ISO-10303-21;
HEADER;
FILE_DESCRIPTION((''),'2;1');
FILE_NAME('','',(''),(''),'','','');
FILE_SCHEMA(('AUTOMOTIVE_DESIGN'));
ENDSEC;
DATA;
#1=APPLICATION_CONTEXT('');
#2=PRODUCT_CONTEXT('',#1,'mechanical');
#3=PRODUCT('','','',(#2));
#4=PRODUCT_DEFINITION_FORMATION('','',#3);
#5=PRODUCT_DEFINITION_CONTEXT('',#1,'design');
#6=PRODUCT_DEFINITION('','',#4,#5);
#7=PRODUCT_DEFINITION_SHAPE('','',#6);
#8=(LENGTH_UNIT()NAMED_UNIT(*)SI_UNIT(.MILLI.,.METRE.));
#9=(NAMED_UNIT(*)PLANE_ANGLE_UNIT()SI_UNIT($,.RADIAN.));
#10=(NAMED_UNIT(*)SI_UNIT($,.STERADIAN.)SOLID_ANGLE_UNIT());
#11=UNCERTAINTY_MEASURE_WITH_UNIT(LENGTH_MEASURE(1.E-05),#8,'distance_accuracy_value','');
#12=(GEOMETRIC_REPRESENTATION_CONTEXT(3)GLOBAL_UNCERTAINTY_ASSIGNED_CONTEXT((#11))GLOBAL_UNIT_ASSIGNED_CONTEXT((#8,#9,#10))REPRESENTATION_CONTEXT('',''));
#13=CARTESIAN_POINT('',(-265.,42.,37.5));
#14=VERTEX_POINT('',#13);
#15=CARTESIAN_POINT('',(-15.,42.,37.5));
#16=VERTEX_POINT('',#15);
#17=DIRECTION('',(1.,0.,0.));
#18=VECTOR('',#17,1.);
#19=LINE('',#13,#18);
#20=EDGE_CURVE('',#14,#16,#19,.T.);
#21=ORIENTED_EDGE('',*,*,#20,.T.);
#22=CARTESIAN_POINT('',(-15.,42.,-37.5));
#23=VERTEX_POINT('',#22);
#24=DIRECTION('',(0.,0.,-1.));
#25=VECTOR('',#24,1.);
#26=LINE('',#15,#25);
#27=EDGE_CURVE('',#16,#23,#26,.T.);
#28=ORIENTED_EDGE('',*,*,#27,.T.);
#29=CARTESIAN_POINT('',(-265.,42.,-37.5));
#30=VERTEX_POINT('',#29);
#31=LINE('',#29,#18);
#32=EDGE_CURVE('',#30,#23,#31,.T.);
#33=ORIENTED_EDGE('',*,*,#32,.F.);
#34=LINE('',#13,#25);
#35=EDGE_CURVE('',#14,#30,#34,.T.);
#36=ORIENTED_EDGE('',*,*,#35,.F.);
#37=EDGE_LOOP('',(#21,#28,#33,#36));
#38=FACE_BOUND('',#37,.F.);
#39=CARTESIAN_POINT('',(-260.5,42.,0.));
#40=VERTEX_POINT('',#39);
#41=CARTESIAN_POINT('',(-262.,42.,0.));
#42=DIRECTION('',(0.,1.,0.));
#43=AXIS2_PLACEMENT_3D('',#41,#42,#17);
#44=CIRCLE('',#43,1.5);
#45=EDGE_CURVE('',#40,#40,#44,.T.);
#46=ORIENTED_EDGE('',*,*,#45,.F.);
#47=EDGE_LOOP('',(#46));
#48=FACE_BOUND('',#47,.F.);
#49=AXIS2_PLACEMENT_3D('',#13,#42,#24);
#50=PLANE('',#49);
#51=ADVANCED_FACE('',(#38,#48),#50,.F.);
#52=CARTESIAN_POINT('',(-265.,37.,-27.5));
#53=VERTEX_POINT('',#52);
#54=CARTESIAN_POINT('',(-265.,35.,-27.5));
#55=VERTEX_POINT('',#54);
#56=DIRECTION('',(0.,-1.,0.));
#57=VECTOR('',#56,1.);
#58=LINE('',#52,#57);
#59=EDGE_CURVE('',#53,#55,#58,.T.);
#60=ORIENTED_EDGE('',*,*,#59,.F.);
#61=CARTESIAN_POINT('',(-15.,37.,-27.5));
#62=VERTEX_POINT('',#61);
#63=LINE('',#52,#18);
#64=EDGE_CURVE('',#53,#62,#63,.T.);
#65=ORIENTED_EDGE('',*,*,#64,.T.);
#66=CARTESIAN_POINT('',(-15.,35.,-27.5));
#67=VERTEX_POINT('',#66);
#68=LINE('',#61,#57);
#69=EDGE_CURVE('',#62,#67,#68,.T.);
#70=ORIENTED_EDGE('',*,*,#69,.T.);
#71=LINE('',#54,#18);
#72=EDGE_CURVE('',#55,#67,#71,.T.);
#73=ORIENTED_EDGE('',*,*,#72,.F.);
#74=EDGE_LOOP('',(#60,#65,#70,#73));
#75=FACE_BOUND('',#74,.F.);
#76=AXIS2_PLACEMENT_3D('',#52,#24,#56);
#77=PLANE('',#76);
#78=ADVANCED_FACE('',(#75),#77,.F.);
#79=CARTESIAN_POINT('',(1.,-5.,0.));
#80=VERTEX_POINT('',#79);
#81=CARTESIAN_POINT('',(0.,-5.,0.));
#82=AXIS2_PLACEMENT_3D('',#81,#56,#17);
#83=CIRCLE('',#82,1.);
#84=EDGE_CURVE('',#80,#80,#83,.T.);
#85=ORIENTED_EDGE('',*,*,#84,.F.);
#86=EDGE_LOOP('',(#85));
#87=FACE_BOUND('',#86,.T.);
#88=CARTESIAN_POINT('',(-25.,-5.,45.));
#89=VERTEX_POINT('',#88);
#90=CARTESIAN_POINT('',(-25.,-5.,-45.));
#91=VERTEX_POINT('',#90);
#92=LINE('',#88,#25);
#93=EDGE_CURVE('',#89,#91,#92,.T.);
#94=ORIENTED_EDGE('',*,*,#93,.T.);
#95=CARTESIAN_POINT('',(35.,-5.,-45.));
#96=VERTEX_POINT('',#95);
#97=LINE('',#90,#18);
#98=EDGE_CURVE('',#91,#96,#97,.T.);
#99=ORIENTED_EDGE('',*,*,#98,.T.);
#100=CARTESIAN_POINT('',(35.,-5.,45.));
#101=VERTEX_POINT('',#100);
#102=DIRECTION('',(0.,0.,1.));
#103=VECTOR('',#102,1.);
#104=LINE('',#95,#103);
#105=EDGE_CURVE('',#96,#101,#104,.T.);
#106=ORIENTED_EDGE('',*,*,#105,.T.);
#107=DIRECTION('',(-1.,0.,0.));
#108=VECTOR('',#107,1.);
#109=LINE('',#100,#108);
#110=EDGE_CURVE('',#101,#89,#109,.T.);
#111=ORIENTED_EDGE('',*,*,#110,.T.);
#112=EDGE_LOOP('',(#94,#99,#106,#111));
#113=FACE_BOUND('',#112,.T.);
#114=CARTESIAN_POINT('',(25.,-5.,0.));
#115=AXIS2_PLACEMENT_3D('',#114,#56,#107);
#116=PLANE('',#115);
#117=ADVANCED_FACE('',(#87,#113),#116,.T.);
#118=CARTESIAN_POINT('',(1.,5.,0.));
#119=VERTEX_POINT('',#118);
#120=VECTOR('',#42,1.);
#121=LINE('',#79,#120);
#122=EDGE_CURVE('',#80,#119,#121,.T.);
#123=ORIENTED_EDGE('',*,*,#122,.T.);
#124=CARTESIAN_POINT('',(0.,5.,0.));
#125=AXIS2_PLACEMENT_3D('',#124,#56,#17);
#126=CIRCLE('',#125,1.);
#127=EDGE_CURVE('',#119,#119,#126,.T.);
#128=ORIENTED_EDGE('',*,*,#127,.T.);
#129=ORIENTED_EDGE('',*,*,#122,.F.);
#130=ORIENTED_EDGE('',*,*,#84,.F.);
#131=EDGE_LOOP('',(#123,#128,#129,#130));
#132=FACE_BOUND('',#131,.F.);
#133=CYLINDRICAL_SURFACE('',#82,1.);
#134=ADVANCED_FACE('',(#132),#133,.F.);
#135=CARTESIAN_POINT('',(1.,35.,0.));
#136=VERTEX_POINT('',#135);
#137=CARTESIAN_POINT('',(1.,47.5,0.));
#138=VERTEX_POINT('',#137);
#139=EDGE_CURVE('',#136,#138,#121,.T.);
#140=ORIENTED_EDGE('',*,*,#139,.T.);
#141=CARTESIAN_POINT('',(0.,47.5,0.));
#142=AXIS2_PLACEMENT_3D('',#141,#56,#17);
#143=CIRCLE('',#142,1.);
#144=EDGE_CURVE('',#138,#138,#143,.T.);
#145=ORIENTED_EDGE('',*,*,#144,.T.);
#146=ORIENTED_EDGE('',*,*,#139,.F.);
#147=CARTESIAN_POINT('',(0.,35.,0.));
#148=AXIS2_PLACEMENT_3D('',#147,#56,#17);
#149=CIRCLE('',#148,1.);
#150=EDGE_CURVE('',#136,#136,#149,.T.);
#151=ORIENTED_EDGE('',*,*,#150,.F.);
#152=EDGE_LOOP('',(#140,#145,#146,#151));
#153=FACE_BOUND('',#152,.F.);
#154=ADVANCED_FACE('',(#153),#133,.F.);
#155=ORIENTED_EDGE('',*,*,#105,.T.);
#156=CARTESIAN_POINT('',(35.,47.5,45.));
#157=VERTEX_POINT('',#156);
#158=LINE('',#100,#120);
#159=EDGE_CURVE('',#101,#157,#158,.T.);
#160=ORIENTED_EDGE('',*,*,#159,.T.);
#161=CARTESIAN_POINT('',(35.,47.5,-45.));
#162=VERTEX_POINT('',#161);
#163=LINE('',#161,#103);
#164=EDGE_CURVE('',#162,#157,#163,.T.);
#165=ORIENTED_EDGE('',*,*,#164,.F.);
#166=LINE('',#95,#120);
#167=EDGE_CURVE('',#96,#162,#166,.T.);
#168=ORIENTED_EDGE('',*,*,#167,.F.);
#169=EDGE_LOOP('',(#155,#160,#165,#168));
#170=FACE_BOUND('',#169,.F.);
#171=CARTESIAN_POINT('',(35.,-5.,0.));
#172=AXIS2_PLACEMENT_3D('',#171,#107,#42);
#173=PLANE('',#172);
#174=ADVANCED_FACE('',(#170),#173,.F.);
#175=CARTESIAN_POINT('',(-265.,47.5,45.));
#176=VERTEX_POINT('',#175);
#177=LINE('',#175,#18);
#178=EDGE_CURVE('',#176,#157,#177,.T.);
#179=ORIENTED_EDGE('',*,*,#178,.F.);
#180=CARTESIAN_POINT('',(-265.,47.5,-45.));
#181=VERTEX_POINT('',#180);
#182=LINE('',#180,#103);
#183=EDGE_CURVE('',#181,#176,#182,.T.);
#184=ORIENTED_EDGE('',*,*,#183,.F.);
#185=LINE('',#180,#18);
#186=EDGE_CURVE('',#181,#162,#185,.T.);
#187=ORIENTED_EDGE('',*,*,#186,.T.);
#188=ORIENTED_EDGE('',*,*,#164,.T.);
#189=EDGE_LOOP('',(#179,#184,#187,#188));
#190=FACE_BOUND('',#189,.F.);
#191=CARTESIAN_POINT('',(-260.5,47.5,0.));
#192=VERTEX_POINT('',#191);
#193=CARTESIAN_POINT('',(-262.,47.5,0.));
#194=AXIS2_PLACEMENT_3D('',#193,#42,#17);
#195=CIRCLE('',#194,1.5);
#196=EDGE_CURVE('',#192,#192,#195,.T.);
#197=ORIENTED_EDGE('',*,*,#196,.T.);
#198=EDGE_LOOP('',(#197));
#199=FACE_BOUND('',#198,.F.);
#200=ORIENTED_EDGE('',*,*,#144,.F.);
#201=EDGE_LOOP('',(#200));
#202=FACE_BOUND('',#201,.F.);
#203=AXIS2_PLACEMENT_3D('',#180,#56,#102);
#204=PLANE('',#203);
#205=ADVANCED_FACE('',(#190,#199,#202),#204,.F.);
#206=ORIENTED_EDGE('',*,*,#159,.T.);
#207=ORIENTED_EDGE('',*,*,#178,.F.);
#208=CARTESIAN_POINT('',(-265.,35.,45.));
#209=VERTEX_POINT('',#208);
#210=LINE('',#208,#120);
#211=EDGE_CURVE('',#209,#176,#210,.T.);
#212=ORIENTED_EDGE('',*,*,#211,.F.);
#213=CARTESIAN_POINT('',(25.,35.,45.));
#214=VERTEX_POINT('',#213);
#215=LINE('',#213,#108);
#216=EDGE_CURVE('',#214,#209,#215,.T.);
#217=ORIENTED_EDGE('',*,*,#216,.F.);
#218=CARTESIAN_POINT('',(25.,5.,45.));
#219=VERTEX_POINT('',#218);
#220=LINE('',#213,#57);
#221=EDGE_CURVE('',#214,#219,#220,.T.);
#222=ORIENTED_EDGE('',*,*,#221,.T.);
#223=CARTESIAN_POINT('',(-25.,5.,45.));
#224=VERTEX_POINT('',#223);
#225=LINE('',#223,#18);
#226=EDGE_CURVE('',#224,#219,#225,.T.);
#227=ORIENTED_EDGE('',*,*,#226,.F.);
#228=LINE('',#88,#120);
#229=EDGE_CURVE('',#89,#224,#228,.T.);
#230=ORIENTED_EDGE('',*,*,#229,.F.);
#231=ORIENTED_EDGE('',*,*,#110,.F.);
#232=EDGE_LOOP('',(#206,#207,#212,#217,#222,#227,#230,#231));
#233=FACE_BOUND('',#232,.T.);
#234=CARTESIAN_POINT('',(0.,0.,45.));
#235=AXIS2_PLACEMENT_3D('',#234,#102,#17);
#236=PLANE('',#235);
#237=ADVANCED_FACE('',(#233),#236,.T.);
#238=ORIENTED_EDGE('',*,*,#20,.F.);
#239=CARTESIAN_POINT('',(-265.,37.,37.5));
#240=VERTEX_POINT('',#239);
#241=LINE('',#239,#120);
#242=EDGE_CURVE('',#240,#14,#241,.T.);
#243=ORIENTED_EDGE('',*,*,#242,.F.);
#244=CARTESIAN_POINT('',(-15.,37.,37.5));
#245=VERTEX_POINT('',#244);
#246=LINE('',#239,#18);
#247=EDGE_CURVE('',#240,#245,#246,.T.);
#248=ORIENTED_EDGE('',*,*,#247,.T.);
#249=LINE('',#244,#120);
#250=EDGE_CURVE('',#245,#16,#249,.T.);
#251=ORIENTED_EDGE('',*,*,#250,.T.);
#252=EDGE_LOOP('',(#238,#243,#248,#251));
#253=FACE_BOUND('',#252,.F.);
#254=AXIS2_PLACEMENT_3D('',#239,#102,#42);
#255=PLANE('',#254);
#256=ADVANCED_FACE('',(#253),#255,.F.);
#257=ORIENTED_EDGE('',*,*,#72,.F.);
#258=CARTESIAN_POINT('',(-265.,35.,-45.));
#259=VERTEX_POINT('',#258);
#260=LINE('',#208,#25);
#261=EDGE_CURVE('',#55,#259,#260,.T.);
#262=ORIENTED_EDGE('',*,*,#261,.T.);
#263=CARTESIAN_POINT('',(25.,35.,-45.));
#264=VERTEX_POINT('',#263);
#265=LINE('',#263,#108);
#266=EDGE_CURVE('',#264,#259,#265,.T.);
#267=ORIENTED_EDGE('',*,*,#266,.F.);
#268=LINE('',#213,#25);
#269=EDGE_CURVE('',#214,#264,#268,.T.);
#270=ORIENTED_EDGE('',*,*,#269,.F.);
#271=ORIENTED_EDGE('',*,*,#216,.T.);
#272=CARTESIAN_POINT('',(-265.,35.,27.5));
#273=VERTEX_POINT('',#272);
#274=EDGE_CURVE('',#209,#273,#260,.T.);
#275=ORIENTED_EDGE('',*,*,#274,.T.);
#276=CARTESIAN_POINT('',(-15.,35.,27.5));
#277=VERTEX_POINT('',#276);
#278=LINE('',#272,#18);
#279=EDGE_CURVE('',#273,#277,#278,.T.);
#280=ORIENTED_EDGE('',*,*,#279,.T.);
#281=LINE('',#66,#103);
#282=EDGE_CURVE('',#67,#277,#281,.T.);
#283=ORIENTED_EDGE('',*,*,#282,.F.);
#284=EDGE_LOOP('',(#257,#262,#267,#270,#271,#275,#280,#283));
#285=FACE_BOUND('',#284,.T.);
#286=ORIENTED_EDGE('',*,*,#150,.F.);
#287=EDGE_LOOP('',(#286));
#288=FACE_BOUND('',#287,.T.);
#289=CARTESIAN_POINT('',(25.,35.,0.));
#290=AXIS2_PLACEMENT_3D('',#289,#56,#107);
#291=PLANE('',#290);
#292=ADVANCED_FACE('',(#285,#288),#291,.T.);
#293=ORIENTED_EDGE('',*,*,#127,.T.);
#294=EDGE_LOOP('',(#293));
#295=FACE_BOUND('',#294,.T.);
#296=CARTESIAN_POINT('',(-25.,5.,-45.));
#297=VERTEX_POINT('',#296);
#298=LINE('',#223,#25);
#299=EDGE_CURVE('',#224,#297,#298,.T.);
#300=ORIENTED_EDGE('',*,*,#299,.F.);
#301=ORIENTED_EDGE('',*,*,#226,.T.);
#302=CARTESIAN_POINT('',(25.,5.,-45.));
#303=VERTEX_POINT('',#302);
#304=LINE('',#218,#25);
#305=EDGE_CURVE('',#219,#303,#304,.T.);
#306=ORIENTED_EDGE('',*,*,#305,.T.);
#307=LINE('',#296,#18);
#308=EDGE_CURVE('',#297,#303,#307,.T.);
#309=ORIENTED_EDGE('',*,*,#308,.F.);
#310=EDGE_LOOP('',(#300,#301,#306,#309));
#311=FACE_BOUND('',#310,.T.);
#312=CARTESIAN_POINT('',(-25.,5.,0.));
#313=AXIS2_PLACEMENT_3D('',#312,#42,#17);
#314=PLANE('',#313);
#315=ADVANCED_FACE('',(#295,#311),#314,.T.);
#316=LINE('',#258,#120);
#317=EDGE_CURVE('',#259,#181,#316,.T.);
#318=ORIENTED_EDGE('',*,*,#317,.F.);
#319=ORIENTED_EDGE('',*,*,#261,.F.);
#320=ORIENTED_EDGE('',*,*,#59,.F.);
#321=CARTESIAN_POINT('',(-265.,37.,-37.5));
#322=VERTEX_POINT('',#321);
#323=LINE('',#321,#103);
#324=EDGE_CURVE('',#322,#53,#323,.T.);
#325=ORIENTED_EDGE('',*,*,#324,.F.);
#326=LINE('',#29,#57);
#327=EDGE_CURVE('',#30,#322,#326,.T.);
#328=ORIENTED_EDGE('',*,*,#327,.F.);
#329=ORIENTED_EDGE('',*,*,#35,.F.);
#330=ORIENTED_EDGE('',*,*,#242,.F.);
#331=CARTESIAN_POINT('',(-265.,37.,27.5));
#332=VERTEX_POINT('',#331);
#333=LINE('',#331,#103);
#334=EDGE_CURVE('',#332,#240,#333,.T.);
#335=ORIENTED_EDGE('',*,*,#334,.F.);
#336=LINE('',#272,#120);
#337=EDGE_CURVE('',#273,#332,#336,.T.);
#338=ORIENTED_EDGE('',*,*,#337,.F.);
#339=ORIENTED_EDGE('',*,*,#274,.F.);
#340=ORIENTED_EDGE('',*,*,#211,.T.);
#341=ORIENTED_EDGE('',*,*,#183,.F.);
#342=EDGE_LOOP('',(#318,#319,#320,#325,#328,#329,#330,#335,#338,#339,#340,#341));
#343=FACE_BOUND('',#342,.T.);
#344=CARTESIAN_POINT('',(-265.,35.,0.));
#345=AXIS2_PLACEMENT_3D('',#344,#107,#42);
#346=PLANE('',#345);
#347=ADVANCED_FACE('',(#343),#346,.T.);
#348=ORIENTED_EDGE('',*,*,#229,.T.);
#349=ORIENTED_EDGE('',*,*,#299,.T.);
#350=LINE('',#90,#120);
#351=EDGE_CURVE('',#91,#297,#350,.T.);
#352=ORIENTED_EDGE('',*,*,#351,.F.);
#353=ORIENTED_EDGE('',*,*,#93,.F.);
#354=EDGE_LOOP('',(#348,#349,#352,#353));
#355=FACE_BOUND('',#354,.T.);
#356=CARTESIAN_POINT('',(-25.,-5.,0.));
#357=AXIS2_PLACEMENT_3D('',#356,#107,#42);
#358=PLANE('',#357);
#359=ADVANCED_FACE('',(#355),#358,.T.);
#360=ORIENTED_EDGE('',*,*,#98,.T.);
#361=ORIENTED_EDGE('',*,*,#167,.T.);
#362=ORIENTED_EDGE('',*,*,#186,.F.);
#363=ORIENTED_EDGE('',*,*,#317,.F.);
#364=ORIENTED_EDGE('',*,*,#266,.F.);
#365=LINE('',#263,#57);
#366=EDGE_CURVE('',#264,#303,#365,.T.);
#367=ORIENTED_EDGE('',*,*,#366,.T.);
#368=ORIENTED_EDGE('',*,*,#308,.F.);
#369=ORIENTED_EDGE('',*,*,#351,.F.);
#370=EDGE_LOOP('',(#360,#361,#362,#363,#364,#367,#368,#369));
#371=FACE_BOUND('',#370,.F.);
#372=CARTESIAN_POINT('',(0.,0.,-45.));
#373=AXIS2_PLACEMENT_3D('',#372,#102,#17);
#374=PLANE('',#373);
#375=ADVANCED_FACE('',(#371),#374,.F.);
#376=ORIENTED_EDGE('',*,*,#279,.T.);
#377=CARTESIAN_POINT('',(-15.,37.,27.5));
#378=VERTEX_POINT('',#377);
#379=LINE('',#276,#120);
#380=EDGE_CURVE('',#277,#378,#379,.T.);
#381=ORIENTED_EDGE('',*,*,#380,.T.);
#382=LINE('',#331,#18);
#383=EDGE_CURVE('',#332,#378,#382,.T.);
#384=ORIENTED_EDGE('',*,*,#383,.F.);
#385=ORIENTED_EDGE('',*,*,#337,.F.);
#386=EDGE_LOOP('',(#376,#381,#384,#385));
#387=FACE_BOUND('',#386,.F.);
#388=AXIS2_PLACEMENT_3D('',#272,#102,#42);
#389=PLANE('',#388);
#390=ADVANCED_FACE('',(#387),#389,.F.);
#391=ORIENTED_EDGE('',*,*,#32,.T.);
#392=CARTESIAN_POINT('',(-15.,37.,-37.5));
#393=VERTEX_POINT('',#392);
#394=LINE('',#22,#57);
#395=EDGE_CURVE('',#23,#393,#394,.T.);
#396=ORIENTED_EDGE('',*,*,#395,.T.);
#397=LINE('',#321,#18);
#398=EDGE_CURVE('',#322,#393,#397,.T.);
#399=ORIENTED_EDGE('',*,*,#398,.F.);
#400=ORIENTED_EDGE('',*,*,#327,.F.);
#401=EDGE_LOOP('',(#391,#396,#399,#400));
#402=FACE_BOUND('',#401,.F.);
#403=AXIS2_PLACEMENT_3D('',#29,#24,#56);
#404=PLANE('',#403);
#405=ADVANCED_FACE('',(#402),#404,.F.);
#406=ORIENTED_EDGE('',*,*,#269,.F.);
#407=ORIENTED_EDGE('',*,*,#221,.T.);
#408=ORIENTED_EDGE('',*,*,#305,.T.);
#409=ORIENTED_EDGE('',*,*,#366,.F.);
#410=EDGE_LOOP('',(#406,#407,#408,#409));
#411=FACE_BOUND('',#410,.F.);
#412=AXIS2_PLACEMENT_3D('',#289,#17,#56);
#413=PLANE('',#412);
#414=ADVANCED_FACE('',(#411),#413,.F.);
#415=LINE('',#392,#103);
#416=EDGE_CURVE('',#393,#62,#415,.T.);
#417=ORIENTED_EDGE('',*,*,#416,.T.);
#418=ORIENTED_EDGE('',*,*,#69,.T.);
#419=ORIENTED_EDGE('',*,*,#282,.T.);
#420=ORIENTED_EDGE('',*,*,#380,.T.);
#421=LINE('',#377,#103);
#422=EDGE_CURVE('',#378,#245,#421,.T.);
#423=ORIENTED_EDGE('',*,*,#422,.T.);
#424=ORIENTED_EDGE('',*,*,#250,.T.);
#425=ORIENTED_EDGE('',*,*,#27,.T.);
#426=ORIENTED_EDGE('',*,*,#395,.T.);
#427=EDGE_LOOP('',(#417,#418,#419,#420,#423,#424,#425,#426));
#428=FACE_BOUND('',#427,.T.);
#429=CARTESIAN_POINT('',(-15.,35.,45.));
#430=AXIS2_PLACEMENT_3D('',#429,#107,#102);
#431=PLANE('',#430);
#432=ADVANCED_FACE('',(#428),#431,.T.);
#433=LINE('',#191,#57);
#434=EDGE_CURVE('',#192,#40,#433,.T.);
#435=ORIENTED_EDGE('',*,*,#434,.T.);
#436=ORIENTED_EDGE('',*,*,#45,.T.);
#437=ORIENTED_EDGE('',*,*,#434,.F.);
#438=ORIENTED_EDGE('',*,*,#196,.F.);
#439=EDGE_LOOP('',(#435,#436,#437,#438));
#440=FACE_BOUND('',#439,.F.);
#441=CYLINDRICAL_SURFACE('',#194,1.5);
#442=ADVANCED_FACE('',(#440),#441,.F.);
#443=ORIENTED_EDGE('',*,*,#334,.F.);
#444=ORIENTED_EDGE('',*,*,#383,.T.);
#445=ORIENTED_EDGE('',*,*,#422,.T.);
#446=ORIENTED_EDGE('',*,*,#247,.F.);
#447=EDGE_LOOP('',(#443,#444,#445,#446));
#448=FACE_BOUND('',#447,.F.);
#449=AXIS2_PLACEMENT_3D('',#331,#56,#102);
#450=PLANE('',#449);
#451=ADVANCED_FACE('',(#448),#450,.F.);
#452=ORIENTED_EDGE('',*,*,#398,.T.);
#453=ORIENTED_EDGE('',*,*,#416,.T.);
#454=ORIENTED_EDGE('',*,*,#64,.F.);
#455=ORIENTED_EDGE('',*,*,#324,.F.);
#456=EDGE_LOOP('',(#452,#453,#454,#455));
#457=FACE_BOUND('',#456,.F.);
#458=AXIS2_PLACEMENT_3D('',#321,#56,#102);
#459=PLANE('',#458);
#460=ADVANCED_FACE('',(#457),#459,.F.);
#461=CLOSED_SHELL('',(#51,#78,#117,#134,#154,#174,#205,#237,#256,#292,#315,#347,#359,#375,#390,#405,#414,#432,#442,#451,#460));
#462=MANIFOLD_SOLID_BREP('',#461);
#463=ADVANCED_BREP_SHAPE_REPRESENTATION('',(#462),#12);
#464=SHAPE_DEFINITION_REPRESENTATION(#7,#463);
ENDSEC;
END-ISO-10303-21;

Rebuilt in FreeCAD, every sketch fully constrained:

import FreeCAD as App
import Part
import Sketcher

V = App.Vector
Q = App.Units.Quantity


def add_polygon(sketch, points):
    """Adds a closed chain of lines whose ends are joined by coincident constraints."""
    first, n = sketch.GeometryCount, len(points)
    for a, b in zip(points, points[1:] + points[:1]):
        sketch.addGeometry(Part.LineSegment(App.Vector(*a, 0), App.Vector(*b, 0)), False)
    for i in range(n):
        sketch.addConstraint(Sketcher.Constraint("Coincident", first + i, 2, first + (i + 1) % n, 1))

doc = App.newDocument("Part")
body = doc.addObject("PartDesign::Body", "Body")

# Sketch on XY plane
sketch1 = body.newObject("Sketcher::SketchObject", "Sketch")
sketch1.AttachmentSupport = (doc.getObject("XY_Plane"), [""])
sketch1.MapMode = "FlatFace"
add_polygon(sketch1, [(-25, -5), (35, -5), (35, 50), (-265, 50), (-265, 35), (25, 35), (25, 5), (-25, 5)])  # lines 0-7
sketch1.addConstraint(Sketcher.Constraint("Horizontal", 0))
sketch1.addConstraint(Sketcher.Constraint("Vertical", 1))
sketch1.addConstraint(Sketcher.Constraint("Horizontal", 2))
sketch1.addConstraint(Sketcher.Constraint("Vertical", 3))
sketch1.addConstraint(Sketcher.Constraint("Horizontal", 4))
sketch1.addConstraint(Sketcher.Constraint("Vertical", 5))
sketch1.addConstraint(Sketcher.Constraint("Horizontal", 6))
sketch1.addConstraint(Sketcher.Constraint("Vertical", 7))
sketch1.addConstraint(Sketcher.Constraint("Symmetric", 5, 2, 7, 2, -1, 1))
sketch1.addConstraint(Sketcher.Constraint("DistanceX", 2, 2, 2, 1, Q("300 mm")))
sketch1.addConstraint(Sketcher.Constraint("DistanceX", 6, 2, 6, 1, Q("50 mm")))
sketch1.addConstraint(Sketcher.Constraint("DistanceY", 3, 2, 3, 1, Q("15 mm")))
sketch1.addConstraint(Sketcher.Constraint("DistanceY", 7, 2, 7, 1, Q("10 mm")))
sketch1.addConstraint(Sketcher.Constraint("DistanceY", -1, 1, 1, 2, Q("50 mm")))
sketch1.addConstraint(Sketcher.Constraint("DistanceX", 4, 2, 1, 2, Q("10 mm")))
pad1 = body.newObject("PartDesign::Pad", "Pad")
pad1.Profile = sketch1
pad1.Length = 90
pad1.Midplane = True

# Sketch on XZ plane
sketch2 = body.newObject("Sketcher::SketchObject", "Sketch001")
sketch2.AttachmentSupport = (doc.getObject("XZ_Plane"), [""])
sketch2.MapMode = "FlatFace"
sketch2.AttachmentOffset = App.Placement(V(0, 0, 5), App.Rotation())
sketch2.addGeometry(Part.Circle(V(0, 0, 0), V(0, 0, 1), 1), False)
sketch2.addConstraint(Sketcher.Constraint("Coincident", 0, 3, -1, 1))
sketch2.addConstraint(Sketcher.Constraint("Diameter", 0, Q("2 mm")))
pocket1 = body.newObject("PartDesign::Pocket", "Pocket")
pocket1.Profile = sketch2
pocket1.Type = "ThroughAll"

# Sketch on YZ plane
sketch3 = body.newObject("Sketcher::SketchObject", "Sketch002")
sketch3.AttachmentSupport = (doc.getObject("YZ_Plane"), [""])
sketch3.MapMode = "FlatFace"
sketch3.AttachmentOffset = App.Placement(V(0, 0, -265), App.Rotation())
add_polygon(sketch3, [(50, 45), (50, -45), (47.5, -45), (47.5, 45)])  # lines 0-3
sketch3.addConstraint(Sketcher.Constraint("Vertical", 0))
sketch3.addConstraint(Sketcher.Constraint("Horizontal", 1))
sketch3.addConstraint(Sketcher.Constraint("Vertical", 2))
sketch3.addConstraint(Sketcher.Constraint("Horizontal", 3))
sketch3.addConstraint(Sketcher.Constraint("DistanceY", 0, 2, 0, 1, Q("90 mm")))
sketch3.addConstraint(Sketcher.Constraint("DistanceX", 1, 2, 1, 1, Q("2.5 mm")))
sketch3.addConstraint(Sketcher.Constraint("DistanceX", -1, 1, 0, 2, Q("50 mm")))
sketch3.addConstraint(Sketcher.Constraint("DistanceY", 0, 2, -1, 1, Q("45 mm")))
pocket2 = body.newObject("PartDesign::Pocket", "Pocket001")
pocket2.Profile = sketch3
pocket2.Length = 300
pocket2.Reversed = True

# Sketch on XZ plane
sketch4 = body.newObject("Sketcher::SketchObject", "Sketch003")
sketch4.AttachmentSupport = (doc.getObject("XZ_Plane"), [""])
sketch4.MapMode = "FlatFace"
sketch4.AttachmentOffset = App.Placement(V(0, 0, -47.5), App.Rotation())
sketch4.addGeometry(Part.Circle(V(-262, 0, 0), V(0, 0, 1), 1.5), False)
sketch4.addConstraint(Sketcher.Constraint("PointOnObject", 0, 3, -1))
sketch4.addConstraint(Sketcher.Constraint("Diameter", 0, Q("3 mm")))
sketch4.addConstraint(Sketcher.Constraint("DistanceX", 0, 3, -1, 1, Q("262 mm")))
pocket3 = body.newObject("PartDesign::Pocket", "Pocket002")
pocket3.Profile = sketch4
pocket3.Length = 60
pocket3.Reversed = True

# Sketch on YZ plane
sketch5 = body.newObject("Sketcher::SketchObject", "Sketch004")
sketch5.AttachmentSupport = (doc.getObject("YZ_Plane"), [""])
sketch5.MapMode = "FlatFace"
sketch5.AttachmentOffset = App.Placement(V(0, 0, -265), App.Rotation())
add_polygon(sketch5, [(37, 37.5), (42, 37.5), (42, -37.5), (37, -37.5), (37, -27.5), (35, -27.5), (35, 27.5), (37, 27.5)])  # lines 0-7
sketch5.addConstraint(Sketcher.Constraint("Horizontal", 0))
sketch5.addConstraint(Sketcher.Constraint("Vertical", 1))
sketch5.addConstraint(Sketcher.Constraint("Horizontal", 2))
sketch5.addConstraint(Sketcher.Constraint("Vertical", 3))
sketch5.addConstraint(Sketcher.Constraint("Horizontal", 4))
sketch5.addConstraint(Sketcher.Constraint("Vertical", 5))
sketch5.addConstraint(Sketcher.Constraint("Horizontal", 6))
sketch5.addConstraint(Sketcher.Constraint("Vertical", 7))
sketch5.addConstraint(Sketcher.Constraint("Symmetric", 3, 2, 6, 2, -1))
sketch5.addConstraint(Sketcher.Constraint("Equal", 3, 7))
sketch5.addConstraint(Sketcher.Constraint("DistanceX", 0, 1, 0, 2, Q("5 mm")))
sketch5.addConstraint(Sketcher.Constraint("DistanceY", 1, 2, 1, 1, Q("75 mm")))
sketch5.addConstraint(Sketcher.Constraint("DistanceY", 5, 1, 5, 2, Q("55 mm")))
sketch5.addConstraint(Sketcher.Constraint("DistanceX", 4, 2, 4, 1, Q("2 mm")))
sketch5.addConstraint(Sketcher.Constraint("DistanceX", -1, 1, 0, 2, Q("42 mm")))
pocket4 = body.newObject("PartDesign::Pocket", "Pocket003")
pocket4.Profile = sketch5
pocket4.Length = 250
pocket4.Reversed = True

doc.recompute()
